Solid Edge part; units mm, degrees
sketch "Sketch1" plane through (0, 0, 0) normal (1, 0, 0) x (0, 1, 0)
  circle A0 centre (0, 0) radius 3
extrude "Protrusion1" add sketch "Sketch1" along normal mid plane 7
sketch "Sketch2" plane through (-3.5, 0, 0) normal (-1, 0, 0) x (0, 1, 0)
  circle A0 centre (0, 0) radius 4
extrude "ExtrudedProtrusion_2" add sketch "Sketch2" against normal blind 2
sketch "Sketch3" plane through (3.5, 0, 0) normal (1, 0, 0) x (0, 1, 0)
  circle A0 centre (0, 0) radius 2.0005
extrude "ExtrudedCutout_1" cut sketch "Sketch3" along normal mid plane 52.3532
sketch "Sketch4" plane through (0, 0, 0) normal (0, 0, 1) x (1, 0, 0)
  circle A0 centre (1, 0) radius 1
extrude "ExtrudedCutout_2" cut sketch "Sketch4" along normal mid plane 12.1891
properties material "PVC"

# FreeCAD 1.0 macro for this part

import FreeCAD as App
import Part
import Sketcher
from FreeCAD import Vector
Q = App.Units.Quantity

doc = App.newDocument("Part")
body = doc.addObject("PartDesign::Body", "Body")

sketch1 = body.newObject("Sketcher::SketchObject", "Sketch")
sketch1.AttachmentSupport = (doc.getObject("YZ_Plane"), [""])
sketch1.MapMode = "FlatFace"
sketch1.addGeometry(Part.Circle(Vector(0, 0, 0), Vector(0, 0, 1), 3), False)
sketch1.addConstraint([
    Sketcher.Constraint("Coincident", 0, 3, -1, 1),
    Sketcher.Constraint("Diameter", 0, Q("6 mm")),
])
pad1 = body.newObject("PartDesign::Pad", "Pad")
pad1.Profile = sketch1
pad1.Length = 7
pad1.Midplane = True

sketch2 = body.newObject("Sketcher::SketchObject", "Sketch001")
sketch2.AttachmentSupport = (doc.getObject("YZ_Plane"), [""])
sketch2.MapMode = "FlatFace"
sketch2.AttachmentOffset = App.Placement(Vector(0, 0, -3.5), App.Rotation())
sketch2.addGeometry(Part.Circle(Vector(0, 0, 0), Vector(0, 0, 1), 4), False)
sketch2.addConstraint([
    Sketcher.Constraint("Coincident", 0, 3, -1, 1),
    Sketcher.Constraint("Diameter", 0, Q("8 mm")),
])
pad2 = body.newObject("PartDesign::Pad", "Pad001")
pad2.Profile = sketch2
pad2.Length = 2

sketch3 = body.newObject("Sketcher::SketchObject", "Sketch002")
sketch3.AttachmentSupport = (doc.getObject("YZ_Plane"), [""])
sketch3.MapMode = "FlatFace"
sketch3.AttachmentOffset = App.Placement(Vector(0, 0, 3.5), App.Rotation())
sketch3.addGeometry(Part.Circle(Vector(0, 0, 0), Vector(0, 0, 1), 2), False)
sketch3.addConstraint([
    Sketcher.Constraint("Coincident", 0, 3, -1, 1),
    Sketcher.Constraint("Diameter", 0, Q("4.001 mm")),
])
pocket1 = body.newObject("PartDesign::Pocket", "Pocket")
pocket1.Profile = sketch3
pocket1.Length = 52.3532
pocket1.Midplane = True

sketch4 = body.newObject("Sketcher::SketchObject", "Sketch003")
sketch4.AttachmentSupport = (doc.getObject("XY_Plane"), [""])
sketch4.MapMode = "FlatFace"
sketch4.addGeometry(Part.Circle(Vector(1, 0, 0), Vector(0, 0, 1), 1), False)
sketch4.addConstraint([
    Sketcher.Constraint("PointOnObject", 0, 3, -1),
    Sketcher.Constraint("Diameter", 0, Q("2 mm")),
    Sketcher.Constraint("DistanceX", -1, 1, 0, 3, Q("1 mm")),
])
pocket2 = body.newObject("PartDesign::Pocket", "Pocket001")
pocket2.Profile = sketch4
pocket2.Length = 12.1891
pocket2.Midplane = True

doc.recompute()
